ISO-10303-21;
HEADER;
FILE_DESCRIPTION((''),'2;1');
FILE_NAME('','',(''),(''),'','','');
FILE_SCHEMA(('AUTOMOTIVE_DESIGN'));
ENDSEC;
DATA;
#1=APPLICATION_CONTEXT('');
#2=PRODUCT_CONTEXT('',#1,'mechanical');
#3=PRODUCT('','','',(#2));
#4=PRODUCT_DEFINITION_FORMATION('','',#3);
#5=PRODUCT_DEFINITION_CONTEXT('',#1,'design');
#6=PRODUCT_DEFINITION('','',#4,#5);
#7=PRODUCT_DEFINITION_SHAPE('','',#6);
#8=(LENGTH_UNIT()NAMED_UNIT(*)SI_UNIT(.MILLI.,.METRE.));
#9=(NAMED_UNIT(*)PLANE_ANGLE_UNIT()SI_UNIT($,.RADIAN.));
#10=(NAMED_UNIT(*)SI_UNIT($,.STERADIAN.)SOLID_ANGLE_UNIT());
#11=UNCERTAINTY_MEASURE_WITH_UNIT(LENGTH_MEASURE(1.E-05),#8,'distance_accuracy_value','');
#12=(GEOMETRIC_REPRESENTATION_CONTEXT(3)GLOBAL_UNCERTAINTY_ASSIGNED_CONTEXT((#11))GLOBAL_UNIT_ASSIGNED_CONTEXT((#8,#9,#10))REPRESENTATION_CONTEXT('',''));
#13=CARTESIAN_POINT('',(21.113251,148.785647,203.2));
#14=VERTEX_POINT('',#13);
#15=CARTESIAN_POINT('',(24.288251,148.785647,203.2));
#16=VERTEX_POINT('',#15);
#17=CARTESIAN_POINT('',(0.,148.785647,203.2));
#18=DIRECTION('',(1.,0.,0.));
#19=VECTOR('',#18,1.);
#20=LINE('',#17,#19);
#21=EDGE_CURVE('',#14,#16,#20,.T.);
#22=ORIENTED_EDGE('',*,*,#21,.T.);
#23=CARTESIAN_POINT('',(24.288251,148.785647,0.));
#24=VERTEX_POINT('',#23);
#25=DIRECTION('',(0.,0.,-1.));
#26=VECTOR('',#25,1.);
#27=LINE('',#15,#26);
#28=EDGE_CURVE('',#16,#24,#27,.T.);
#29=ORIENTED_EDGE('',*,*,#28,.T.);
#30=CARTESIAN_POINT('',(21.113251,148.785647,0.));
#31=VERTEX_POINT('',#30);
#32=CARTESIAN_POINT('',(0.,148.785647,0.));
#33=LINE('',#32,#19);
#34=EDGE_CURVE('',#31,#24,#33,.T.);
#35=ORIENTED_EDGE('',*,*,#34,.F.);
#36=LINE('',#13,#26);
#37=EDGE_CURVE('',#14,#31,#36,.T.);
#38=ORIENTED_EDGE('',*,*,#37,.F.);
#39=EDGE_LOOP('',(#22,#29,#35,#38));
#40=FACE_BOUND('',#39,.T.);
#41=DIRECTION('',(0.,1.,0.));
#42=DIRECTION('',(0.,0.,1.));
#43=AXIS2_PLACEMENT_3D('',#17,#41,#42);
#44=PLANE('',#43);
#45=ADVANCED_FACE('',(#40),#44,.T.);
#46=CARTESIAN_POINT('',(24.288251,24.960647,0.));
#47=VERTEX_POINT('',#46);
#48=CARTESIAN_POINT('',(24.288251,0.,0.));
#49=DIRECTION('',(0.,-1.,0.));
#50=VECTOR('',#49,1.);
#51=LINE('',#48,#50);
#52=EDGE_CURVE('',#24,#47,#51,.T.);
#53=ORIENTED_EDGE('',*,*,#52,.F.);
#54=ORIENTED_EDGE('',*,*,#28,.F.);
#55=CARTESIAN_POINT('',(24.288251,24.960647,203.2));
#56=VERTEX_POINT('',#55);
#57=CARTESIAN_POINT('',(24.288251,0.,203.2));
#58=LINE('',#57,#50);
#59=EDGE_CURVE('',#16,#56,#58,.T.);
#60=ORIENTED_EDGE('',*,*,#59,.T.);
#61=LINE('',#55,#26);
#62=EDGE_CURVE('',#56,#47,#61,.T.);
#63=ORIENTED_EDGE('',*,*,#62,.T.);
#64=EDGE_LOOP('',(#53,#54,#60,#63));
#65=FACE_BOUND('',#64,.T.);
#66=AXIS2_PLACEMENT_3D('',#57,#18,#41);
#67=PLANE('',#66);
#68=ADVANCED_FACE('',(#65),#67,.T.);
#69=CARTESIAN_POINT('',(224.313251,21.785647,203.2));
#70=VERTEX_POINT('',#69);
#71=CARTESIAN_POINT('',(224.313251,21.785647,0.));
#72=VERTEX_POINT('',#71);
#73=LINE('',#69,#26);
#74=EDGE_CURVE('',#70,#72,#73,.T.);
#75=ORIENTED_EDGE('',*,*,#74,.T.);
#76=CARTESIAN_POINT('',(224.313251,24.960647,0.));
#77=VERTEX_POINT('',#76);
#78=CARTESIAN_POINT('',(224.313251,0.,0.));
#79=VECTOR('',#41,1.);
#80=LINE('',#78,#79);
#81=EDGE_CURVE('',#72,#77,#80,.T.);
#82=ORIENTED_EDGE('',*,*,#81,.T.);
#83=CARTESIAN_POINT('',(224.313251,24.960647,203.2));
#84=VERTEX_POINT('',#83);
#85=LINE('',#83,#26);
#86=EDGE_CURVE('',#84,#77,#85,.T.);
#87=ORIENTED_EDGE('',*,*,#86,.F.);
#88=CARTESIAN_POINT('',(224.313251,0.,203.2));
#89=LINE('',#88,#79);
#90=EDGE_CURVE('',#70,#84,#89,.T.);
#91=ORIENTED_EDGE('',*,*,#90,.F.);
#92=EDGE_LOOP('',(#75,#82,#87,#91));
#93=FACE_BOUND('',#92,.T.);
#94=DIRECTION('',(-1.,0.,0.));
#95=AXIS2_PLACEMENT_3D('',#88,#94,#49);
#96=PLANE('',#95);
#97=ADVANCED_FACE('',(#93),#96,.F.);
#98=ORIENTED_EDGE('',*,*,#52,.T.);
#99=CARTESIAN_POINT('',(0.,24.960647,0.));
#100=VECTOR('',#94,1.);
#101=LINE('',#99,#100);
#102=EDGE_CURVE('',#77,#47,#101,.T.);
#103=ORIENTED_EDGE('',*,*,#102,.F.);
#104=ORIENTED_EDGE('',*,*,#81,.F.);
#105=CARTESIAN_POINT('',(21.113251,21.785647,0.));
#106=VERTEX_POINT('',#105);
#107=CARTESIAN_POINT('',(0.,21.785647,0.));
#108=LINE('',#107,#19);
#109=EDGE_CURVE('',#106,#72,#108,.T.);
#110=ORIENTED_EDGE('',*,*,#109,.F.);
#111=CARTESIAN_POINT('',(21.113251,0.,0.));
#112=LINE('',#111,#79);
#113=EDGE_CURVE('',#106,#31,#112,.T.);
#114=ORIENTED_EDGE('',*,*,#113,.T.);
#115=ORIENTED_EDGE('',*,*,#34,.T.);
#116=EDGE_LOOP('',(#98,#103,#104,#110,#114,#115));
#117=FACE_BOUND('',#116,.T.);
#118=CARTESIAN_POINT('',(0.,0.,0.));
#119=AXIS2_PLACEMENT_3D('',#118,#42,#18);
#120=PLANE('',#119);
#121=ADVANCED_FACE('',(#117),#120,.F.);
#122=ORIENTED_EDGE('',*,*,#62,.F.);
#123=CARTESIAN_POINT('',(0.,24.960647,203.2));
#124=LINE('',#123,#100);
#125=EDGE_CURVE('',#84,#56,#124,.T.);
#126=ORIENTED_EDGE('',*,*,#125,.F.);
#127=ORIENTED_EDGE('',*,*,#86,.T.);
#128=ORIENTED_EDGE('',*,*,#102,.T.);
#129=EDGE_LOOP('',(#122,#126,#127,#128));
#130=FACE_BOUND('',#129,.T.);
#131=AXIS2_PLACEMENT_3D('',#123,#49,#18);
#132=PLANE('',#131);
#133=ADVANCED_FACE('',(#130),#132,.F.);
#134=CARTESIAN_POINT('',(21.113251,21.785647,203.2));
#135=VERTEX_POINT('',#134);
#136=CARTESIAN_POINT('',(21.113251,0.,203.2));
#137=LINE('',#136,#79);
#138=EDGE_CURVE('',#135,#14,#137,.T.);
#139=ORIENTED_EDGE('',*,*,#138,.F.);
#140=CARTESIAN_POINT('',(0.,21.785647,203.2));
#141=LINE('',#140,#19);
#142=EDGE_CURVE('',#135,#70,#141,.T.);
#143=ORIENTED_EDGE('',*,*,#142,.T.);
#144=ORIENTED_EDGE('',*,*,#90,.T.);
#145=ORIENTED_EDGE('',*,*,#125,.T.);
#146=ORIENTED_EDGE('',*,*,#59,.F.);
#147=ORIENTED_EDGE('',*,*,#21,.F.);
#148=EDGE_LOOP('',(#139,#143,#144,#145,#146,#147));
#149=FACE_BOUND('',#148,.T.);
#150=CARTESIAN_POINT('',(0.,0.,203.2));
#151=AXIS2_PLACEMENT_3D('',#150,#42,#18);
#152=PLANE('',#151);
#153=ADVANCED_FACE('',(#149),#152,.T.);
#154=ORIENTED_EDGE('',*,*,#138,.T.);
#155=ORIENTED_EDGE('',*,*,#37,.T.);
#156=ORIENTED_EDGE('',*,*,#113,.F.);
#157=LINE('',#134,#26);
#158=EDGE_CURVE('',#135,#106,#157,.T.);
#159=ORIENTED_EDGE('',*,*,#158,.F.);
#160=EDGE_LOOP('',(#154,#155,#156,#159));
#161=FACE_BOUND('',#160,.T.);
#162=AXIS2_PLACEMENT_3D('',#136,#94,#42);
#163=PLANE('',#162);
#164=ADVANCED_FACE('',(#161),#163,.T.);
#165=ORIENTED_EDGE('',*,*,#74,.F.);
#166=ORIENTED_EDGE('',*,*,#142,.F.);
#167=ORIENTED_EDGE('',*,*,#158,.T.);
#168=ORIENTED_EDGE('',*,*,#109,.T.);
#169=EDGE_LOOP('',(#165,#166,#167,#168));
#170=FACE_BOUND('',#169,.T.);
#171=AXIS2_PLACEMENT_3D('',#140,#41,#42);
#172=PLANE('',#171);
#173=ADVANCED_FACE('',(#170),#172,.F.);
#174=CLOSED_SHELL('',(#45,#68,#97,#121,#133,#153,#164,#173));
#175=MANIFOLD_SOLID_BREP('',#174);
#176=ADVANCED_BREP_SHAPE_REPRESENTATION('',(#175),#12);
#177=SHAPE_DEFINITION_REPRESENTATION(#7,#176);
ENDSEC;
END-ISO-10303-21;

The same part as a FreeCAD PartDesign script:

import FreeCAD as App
import Part
import Sketcher
Q = App.Units.Quantity

doc = App.newDocument("Part")
params = doc.addObject("Spreadsheet::Sheet", "Params")
for row, (alias, value) in enumerate([
    ("sketch1_width", "8 in"),
    ("sketch1_height", "5 in"),
    ("sketch1_width2", "7.875 in"),
    ("pad1_length", "8 in"),
], start=1):
    params.set(f"A{row}", alias)
    params.set(f"B{row}", "=" + value)
    params.setAlias(f"B{row}", alias)

body = doc.addObject("PartDesign::Body", "Body")

# Sketch on XY plane
sketch1 = body.newObject("Sketcher::SketchObject", "Sketch")
sketch1.AttachmentSupport = (doc.getObject("XY_Plane"), [""])
sketch1.MapMode = "FlatFace"
sketch1.addGeometry([
    Part.LineSegment(App.Vector(21.113251, 148.785647, 0), App.Vector(21.113251, 21.785647, 0)),  # 0
    Part.LineSegment(App.Vector(21.113251, 21.785647, 0), App.Vector(224.313251, 21.785647, 0)),  # 1
    Part.LineSegment(App.Vector(224.313251, 21.785647, 0), App.Vector(224.313251, 24.960647, 0)),  # 2
    Part.LineSegment(App.Vector(224.313251, 24.960647, 0), App.Vector(24.288251, 24.960647, 0)),  # 3
    Part.LineSegment(App.Vector(24.288251, 24.960647, 0), App.Vector(24.288251, 148.785647, 0)),  # 4
    Part.LineSegment(App.Vector(24.288251, 148.785647, 0), App.Vector(21.113251, 148.785647, 0)),  # 5
], False)
sketch1.addConstraint([
    Sketcher.Constraint("Coincident", 0, 2, 1, 1),
    Sketcher.Constraint("Coincident", 1, 2, 2, 1),
    Sketcher.Constraint("Coincident", 2, 2, 3, 1),
    Sketcher.Constraint("Coincident", 3, 2, 4, 1),
    Sketcher.Constraint("Coincident", 4, 2, 5, 1),
    Sketcher.Constraint("Coincident", 5, 2, 0, 1),
    Sketcher.Constraint("Vertical", 0),
    Sketcher.Constraint("Horizontal", 1),
    Sketcher.Constraint("Vertical", 2),
    Sketcher.Constraint("Horizontal", 3),
    Sketcher.Constraint("Vertical", 4),
    Sketcher.Constraint("Horizontal", 5),
    Sketcher.Constraint("Equal", 5, 2),
    Sketcher.Constraint("DistanceX", 1, 1, 1, 2, Q("8 in")),
    Sketcher.Constraint("DistanceY", 0, 2, 0, 1, Q("5 in")),
    Sketcher.Constraint("DistanceX", 3, 2, 3, 1, Q("7.875 in")),
    Sketcher.Constraint("DistanceX", -1, 1, 0, 2, Q("21.113251 mm")),
    Sketcher.Constraint("DistanceY", -1, 1, 0, 2, Q("21.785647 mm")),
])
sketch1.setExpression("Constraints[13]", "Params.sketch1_width")
sketch1.setExpression("Constraints[14]", "Params.sketch1_height")
sketch1.setExpression("Constraints[15]", "Params.sketch1_width2")
pad1 = body.newObject("PartDesign::Pad", "Pad")
pad1.Profile = sketch1
pad1.setExpression("Length", "Params.pad1_length")

doc.recompute()
